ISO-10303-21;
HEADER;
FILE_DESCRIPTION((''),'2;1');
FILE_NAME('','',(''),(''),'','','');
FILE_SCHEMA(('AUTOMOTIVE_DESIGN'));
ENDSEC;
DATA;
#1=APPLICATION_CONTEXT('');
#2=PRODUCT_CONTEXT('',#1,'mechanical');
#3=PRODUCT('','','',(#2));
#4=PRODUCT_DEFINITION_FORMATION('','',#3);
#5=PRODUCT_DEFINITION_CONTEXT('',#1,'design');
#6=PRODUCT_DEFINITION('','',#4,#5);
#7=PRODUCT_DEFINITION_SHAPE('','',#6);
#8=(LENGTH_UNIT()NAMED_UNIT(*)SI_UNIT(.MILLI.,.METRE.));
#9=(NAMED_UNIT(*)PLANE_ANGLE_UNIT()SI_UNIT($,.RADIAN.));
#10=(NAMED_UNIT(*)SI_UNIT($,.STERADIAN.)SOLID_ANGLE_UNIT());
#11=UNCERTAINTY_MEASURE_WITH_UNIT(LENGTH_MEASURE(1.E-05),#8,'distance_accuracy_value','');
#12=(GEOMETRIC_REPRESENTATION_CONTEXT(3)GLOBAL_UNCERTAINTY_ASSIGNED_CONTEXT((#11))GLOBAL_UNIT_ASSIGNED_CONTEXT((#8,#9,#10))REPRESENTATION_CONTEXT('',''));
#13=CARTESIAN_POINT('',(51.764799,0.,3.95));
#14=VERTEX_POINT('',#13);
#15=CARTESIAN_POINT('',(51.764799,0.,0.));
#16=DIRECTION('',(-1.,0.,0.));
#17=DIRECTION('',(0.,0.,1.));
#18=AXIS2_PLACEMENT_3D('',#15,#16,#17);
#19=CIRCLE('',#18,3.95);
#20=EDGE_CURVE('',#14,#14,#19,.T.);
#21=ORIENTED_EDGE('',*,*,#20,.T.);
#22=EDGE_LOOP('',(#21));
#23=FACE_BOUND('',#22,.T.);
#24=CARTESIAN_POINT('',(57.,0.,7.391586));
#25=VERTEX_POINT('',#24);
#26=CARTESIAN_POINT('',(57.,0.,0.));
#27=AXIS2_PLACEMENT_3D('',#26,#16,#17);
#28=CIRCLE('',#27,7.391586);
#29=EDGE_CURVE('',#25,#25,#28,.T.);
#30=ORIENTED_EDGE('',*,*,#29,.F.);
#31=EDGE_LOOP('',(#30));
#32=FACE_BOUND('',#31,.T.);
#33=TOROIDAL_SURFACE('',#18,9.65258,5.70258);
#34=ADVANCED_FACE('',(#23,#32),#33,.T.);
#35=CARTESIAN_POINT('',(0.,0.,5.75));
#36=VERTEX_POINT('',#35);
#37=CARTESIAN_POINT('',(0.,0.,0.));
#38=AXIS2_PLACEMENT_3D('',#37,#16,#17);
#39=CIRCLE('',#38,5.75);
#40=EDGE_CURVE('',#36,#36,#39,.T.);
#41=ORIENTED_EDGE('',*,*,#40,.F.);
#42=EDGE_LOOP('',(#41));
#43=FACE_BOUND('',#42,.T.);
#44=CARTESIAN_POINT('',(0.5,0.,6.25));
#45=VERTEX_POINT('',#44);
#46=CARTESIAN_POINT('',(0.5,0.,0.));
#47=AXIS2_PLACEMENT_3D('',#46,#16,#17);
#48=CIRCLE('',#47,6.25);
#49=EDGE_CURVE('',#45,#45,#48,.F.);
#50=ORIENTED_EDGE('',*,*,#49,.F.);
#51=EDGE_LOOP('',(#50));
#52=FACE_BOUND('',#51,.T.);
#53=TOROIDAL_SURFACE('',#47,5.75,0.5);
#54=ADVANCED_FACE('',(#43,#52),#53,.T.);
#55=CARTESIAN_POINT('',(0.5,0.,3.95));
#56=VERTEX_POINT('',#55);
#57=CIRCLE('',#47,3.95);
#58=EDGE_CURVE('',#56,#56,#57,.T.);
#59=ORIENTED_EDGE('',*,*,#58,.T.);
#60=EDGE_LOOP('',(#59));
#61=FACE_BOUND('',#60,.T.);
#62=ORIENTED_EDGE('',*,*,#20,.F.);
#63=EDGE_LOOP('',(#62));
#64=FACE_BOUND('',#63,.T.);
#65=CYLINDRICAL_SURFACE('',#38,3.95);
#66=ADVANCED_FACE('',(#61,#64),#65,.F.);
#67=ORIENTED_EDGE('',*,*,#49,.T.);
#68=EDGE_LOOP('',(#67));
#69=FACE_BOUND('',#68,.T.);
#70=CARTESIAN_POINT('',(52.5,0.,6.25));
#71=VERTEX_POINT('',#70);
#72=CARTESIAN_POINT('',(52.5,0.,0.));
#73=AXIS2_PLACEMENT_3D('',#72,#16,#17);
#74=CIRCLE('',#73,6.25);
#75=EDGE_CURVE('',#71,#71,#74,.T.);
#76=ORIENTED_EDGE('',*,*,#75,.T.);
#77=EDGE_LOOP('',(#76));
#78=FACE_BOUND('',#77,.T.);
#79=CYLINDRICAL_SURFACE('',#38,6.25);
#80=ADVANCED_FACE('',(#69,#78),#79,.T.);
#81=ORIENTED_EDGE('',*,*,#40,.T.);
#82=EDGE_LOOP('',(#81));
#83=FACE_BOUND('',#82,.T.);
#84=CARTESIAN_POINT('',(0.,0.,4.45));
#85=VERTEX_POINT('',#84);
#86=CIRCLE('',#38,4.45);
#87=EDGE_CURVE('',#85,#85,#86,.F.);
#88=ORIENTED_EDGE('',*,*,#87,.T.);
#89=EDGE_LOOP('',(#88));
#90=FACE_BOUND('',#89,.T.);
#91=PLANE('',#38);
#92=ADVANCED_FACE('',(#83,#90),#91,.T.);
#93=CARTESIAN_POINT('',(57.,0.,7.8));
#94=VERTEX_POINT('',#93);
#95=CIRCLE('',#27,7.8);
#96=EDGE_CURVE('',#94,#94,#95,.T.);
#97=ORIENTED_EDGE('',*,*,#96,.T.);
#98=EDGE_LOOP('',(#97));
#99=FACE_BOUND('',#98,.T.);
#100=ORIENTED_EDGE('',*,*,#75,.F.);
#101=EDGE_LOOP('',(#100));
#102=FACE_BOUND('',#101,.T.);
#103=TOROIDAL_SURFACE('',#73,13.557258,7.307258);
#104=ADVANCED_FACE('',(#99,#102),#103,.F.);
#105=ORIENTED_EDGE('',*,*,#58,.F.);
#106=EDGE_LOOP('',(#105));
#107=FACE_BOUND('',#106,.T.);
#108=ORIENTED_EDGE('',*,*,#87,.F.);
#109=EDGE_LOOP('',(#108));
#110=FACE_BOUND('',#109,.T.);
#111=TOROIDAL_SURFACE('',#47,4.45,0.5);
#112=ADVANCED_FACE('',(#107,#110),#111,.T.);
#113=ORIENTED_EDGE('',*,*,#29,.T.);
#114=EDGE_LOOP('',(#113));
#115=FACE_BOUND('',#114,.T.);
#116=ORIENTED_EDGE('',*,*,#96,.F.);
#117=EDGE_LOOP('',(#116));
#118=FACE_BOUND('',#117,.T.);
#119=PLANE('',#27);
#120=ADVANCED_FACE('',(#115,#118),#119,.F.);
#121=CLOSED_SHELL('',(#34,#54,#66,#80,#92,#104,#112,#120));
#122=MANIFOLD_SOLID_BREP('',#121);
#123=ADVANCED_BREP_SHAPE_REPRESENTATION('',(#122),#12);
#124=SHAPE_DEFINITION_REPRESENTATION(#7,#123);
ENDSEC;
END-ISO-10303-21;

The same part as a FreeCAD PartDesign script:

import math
import FreeCAD as App
import Part
import Sketcher
from FreeCAD import Vector
Q = App.Units.Quantity


def edges_at(feature, points):
    """Names of the edges that pass closest to the given points."""
    edges = feature.Shape.Edges
    near = lambda p: min(range(len(edges)), key=lambda i: edges[i].distToShape(Part.Vertex(*p))[0])
    return sorted({f"Edge{near(p) + 1}" for p in points})

doc = App.newDocument("Part")
body = doc.addObject("PartDesign::Body", "Body")

# Sketch on XY plane
sketch1 = body.newObject("Sketcher::SketchObject", "Sketch")
sketch1.AttachmentSupport = (doc.getObject("XY_Plane"), [""])
sketch1.MapMode = "FlatFace"
sketch1.addGeometry([
    Part.LineSegment(Vector(0, 6.25, 0), Vector(0, 3.95, 0)),  # 0
    Part.LineSegment(Vector(0, 3.95, 0), Vector(51.76, 3.95, 0)),  # 1
    Part.ArcOfCircle(Part.Circle(Vector(51.76, 9.65, 0), Vector(0, 0, 1), 5.7), math.radians(-90), math.radians(-23)),  # 2
    Part.LineSegment(Vector(57, 7.39, 0), Vector(57, 7.8, 0)),  # 3
    Part.ArcOfCircle(Part.Circle(Vector(52.5, 13.56, 0), Vector(0, 0, 1), 7.31), math.radians(-90), math.radians(-52)),  # 4
    Part.LineSegment(Vector(52.5, 6.25, 0), Vector(0, 6.25, 0)),  # 5
], False)
sketch1.addConstraint([
    Sketcher.Constraint("Coincident", 0, 2, 1, 1),
    Sketcher.Constraint("Tangent", 1, 2, 2, 1),
    Sketcher.Constraint("Coincident", 2, 2, 3, 1),
    Sketcher.Constraint("Coincident", 3, 2, 4, 2),
    Sketcher.Constraint("Tangent", 4, 1, 5, 1),
    Sketcher.Constraint("Coincident", 5, 2, 0, 1),
    Sketcher.Constraint("Vertical", 0),
    Sketcher.Constraint("Horizontal", 1),
    Sketcher.Constraint("Vertical", 3),
    Sketcher.Constraint("Horizontal", 5),
    Sketcher.Constraint("PointOnObject", 0, 2, -2),
    Sketcher.Constraint("DistanceX", 5, 2, 5, 1, Q("52.5 mm")),
    Sketcher.Constraint("DistanceY", 0, 2, 0, 1, Q("2.3 mm")),
    Sketcher.Constraint("DistanceX", -1, 1, 2, 2, Q("57 mm")),
    Sketcher.Constraint("DistanceY", -1, 1, 3, 2, Q("7.8 mm")),
    Sketcher.Constraint("DistanceY", -1, 1, 0, 2, Q("3.95 mm")),
    Sketcher.Constraint("Radius", 2, Q("5.70258 mm")),
    Sketcher.Constraint("DistanceX", 1, 1, 1, 2, Q("51.764799 mm")),
])
revolution = body.newObject("PartDesign::Revolution", "Revolution")
revolution.Profile = sketch1
revolution.ReferenceAxis = (sketch1, ["H_Axis"])
revolution.Angle = 360
doc.recompute()

fillet = body.newObject("PartDesign::Fillet", "Fillet")
fillet.Base = (revolution, edges_at(revolution, [(0, 0, -3.95), (0, 0, -6.25)]))
fillet.Radius = 0.5

doc.recompute()
